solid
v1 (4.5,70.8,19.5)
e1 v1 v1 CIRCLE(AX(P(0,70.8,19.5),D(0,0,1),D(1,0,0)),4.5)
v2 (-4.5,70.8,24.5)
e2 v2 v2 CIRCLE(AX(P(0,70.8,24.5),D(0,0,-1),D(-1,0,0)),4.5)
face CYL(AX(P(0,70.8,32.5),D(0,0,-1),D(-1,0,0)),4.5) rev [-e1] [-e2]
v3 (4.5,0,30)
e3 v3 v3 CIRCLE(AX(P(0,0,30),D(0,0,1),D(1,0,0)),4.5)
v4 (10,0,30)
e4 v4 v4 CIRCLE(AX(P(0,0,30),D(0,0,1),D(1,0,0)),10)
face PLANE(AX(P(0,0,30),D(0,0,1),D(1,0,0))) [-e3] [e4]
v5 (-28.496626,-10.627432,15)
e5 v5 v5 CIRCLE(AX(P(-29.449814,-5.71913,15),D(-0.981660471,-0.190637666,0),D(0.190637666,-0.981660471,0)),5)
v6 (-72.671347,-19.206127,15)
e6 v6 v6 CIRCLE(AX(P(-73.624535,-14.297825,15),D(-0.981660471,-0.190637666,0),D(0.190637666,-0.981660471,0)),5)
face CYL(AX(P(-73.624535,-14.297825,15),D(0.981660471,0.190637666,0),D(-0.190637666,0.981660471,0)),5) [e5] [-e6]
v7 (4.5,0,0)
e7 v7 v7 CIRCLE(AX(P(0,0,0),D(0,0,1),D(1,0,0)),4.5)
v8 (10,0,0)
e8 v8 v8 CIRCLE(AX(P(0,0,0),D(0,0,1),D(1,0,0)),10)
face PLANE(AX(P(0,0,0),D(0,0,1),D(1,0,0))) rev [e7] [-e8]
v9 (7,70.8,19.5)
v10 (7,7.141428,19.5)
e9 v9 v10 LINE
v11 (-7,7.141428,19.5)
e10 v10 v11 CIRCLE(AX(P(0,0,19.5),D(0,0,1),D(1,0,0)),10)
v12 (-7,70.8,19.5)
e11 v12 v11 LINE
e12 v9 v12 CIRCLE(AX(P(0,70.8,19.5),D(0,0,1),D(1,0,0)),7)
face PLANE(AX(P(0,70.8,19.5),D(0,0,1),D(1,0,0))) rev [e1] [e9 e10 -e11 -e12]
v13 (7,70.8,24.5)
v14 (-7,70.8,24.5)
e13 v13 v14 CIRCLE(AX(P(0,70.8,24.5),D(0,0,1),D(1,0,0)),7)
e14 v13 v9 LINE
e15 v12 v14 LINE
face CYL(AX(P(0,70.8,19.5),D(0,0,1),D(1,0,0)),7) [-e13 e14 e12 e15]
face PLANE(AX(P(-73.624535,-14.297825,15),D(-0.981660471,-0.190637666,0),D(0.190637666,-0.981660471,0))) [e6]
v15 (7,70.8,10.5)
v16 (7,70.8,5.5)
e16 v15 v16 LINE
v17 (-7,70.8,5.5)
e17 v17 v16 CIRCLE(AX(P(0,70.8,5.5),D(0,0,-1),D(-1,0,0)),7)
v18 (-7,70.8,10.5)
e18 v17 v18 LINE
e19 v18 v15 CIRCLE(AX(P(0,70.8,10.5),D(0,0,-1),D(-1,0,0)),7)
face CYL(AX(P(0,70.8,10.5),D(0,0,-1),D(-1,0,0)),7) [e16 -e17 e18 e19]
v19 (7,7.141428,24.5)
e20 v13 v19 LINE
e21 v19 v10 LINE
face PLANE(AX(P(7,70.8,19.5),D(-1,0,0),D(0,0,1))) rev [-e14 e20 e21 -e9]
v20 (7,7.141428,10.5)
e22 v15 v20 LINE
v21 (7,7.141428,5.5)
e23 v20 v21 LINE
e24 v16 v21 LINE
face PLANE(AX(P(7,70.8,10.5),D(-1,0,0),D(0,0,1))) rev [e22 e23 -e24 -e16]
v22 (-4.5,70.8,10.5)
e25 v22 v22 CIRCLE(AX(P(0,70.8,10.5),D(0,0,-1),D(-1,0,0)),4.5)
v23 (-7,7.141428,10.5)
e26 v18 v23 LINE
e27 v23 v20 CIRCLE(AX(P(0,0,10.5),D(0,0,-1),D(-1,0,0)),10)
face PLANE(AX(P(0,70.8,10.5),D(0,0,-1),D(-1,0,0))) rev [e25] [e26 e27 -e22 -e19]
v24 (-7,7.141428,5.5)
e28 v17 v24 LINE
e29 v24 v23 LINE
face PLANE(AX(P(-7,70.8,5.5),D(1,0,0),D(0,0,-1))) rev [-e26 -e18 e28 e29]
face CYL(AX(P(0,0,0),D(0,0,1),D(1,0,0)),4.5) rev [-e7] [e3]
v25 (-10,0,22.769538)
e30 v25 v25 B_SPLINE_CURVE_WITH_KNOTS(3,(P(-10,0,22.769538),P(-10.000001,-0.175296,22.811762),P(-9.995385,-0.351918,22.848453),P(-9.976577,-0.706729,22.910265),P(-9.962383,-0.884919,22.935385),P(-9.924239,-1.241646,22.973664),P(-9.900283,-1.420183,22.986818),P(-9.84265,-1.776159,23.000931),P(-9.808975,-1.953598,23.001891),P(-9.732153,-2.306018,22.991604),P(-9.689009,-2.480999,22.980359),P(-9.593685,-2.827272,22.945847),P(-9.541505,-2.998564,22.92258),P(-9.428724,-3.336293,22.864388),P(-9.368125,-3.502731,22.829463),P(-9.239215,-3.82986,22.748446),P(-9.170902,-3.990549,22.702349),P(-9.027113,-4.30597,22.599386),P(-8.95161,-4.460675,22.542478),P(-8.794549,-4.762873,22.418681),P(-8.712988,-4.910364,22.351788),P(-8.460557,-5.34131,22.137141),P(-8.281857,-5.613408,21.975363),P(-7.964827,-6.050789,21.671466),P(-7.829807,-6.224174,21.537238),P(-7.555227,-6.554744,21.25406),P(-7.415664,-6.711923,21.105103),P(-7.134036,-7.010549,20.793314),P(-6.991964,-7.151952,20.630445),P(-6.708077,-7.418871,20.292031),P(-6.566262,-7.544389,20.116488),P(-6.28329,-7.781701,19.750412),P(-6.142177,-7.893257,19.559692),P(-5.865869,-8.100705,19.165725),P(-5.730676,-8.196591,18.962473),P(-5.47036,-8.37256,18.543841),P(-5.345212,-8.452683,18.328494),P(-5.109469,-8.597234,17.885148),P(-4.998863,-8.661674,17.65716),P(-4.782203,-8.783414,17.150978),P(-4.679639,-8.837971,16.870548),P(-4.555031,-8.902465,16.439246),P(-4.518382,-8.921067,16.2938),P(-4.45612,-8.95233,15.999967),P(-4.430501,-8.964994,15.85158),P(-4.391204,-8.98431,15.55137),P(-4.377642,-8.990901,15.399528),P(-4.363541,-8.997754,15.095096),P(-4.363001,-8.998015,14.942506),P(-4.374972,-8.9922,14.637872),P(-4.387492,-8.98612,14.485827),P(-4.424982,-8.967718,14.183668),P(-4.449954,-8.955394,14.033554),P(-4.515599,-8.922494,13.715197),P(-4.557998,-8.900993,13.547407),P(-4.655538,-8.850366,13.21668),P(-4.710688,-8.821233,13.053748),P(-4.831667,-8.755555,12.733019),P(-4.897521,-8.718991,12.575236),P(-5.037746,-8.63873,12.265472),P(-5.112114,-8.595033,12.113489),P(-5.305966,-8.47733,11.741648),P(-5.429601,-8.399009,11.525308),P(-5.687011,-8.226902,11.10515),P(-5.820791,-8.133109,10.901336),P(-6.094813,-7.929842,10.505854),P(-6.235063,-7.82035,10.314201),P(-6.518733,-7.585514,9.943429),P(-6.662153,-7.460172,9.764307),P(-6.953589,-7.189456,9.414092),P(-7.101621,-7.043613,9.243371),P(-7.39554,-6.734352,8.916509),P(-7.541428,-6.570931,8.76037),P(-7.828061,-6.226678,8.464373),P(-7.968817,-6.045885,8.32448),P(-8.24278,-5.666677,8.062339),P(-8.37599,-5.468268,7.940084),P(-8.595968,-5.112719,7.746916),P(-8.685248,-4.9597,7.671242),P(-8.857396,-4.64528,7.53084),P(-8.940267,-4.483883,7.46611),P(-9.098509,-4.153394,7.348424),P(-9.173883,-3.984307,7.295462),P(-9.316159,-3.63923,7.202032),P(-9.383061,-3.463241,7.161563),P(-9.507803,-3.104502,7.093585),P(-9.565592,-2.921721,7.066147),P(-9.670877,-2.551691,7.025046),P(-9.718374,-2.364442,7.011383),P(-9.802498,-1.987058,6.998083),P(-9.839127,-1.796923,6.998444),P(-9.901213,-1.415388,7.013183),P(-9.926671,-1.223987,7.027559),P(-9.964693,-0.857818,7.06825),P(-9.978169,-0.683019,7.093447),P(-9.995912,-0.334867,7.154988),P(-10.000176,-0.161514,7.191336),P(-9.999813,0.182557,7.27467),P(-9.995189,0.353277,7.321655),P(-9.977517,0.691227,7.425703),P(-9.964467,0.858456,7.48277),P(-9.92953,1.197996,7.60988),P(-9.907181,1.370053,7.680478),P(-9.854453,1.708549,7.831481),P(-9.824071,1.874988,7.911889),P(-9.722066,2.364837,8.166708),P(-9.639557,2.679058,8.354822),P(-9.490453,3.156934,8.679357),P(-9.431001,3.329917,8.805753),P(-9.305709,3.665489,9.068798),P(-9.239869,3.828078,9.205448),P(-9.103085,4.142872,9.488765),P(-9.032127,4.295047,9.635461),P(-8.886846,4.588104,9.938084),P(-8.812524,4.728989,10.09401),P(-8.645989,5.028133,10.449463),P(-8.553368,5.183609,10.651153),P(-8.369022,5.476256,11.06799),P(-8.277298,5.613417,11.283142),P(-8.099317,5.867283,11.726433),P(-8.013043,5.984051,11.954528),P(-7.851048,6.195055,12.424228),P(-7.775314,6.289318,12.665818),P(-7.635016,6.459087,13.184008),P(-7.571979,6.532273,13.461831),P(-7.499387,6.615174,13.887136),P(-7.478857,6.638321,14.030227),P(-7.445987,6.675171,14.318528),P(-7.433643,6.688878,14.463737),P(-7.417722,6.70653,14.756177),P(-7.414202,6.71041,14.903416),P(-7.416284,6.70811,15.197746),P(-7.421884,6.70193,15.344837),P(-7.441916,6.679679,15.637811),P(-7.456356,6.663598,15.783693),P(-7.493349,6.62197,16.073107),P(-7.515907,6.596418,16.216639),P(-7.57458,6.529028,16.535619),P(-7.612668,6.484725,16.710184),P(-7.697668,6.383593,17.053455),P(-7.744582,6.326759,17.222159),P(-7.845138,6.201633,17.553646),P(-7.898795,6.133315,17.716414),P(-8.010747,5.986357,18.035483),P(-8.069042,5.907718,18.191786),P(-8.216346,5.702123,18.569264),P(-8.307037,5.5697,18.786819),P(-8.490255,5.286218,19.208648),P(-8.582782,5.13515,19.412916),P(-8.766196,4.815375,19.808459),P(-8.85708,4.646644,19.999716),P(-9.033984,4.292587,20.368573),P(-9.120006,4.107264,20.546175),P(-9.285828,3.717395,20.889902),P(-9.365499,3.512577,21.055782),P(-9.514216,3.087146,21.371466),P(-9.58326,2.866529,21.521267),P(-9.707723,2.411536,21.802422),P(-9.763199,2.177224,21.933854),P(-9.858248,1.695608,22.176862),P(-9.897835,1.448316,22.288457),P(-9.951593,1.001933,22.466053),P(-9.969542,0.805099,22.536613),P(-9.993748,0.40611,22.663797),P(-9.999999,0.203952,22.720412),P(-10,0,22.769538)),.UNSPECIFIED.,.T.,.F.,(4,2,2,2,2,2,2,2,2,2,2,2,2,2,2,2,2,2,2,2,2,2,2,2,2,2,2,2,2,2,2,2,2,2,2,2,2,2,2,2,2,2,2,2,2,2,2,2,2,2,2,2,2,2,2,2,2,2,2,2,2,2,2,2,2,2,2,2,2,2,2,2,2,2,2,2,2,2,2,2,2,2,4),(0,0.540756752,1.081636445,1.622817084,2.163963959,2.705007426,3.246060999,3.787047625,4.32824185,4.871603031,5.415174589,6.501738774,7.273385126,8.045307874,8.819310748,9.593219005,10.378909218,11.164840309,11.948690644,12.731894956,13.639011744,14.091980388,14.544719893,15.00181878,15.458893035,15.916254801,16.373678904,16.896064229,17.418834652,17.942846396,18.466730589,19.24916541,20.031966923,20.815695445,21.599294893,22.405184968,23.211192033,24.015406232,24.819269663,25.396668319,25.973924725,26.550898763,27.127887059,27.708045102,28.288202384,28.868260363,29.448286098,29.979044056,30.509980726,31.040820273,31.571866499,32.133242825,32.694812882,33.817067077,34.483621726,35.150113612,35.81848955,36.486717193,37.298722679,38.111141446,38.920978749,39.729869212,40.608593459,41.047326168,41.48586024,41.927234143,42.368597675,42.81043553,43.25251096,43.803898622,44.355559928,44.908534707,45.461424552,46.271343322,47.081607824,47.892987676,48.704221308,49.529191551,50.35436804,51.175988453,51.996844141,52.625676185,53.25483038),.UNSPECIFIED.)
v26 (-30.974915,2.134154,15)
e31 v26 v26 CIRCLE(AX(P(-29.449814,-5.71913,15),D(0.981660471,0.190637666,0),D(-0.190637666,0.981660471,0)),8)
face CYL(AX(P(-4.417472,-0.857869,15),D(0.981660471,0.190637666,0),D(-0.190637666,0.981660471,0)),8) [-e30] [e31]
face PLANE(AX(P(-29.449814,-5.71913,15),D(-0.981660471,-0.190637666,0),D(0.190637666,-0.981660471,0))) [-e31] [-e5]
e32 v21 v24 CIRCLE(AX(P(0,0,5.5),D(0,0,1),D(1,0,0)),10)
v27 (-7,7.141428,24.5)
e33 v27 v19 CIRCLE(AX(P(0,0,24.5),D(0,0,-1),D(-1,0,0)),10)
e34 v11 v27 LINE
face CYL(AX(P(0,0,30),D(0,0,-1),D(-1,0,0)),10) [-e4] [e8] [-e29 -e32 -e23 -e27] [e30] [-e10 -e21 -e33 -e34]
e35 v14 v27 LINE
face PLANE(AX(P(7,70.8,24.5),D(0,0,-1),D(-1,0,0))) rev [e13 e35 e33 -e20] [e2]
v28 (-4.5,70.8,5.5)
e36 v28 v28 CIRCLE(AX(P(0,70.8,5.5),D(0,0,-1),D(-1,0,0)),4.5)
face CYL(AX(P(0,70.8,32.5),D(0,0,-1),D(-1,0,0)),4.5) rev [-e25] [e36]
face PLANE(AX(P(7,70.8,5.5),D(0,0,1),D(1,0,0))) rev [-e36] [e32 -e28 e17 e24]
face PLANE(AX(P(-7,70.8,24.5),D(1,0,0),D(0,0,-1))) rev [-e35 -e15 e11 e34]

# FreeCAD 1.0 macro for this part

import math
import FreeCAD as App
import Part
import Sketcher

V = App.Vector
Q = App.Units.Quantity


def add_polygon(sketch, points):
    """Adds a closed chain of lines whose ends are joined by coincident constraints."""
    first, n = sketch.GeometryCount, len(points)
    for a, b in zip(points, points[1:] + points[:1]):
        sketch.addGeometry(Part.LineSegment(App.Vector(*a, 0), App.Vector(*b, 0)), False)
    for i in range(n):
        sketch.addConstraint(Sketcher.Constraint("Coincident", first + i, 2, first + (i + 1) % n, 1))

doc = App.newDocument("Part")
params = doc.addObject("Spreadsheet::Sheet", "Params")
for row, (alias, value) in enumerate([
    ("sketch1_diameter", "20 mm"),
    ("pad1_length", "30 mm"),
    ("sketch2_diameter", "9 mm"),
    ("pocket1_length", "30 mm"),
    ("sketch3_width", "14 mm"),
    ("sketch3_height", "5 mm"),
    ("pad2_length", "66.3 mm"),
    ("sketch4_radius", "7 mm"),
    ("pad3_length", "5 mm"),
    ("sketch5_radius", "7 mm"),
    ("pad4_length", "5 mm"),
    ("sketch6_diameter", "9 mm"),
    ("pocket2_length", "27 mm"),
    ("sketch7_length", "8 mm"),
    ("sketch7_length2", "25.5 mm"),
    ("revolution_angle", "360 deg"),
    ("sketch8_diameter", "10 mm"),
    ("pad5_length", "45 mm"),
], start=1):
    params.set(f"A{row}", alias)
    params.set(f"B{row}", "=" + value)
    params.setAlias(f"B{row}", alias)

body = doc.addObject("PartDesign::Body", "Body")

sketch1 = body.newObject("Sketcher::SketchObject", "Sketch")
sketch1.AttachmentSupport = (doc.getObject("XY_Plane"), [""])
sketch1.MapMode = "FlatFace"
sketch1.addGeometry(Part.Circle(V(0, 0, 0), V(0, 0, 1), 10), False)
sketch1.addConstraint(Sketcher.Constraint("Coincident", 0, 3, -1, 1))
sketch1.addConstraint(Sketcher.Constraint("Diameter", 0, 20.0))
sketch1.setExpression("Constraints[1]", "Params.sketch1_diameter")
pad1 = body.newObject("PartDesign::Pad", "Pad")
pad1.Profile = sketch1
pad1.setExpression("Length", "Params.pad1_length")

sketch2 = body.newObject("Sketcher::SketchObject", "Sketch001")
sketch2.AttachmentSupport = (doc.getObject("XY_Plane"), [""])
sketch2.MapMode = "FlatFace"
sketch2.AttachmentOffset = App.Placement(V(0, 0, 30), App.Rotation())
sketch2.addGeometry(Part.Circle(V(0, 0, 0), V(0, 0, 1), 4.5), False)
sketch2.addConstraint(Sketcher.Constraint("Coincident", 0, 3, -1, 1))
sketch2.addConstraint(Sketcher.Constraint("Diameter", 0, 9.0))
sketch2.setExpression("Constraints[1]", "Params.sketch2_diameter")
pocket1 = body.newObject("PartDesign::Pocket", "Pocket")
pocket1.Profile = sketch2
pocket1.setExpression("Length", "Params.pocket1_length")

sketch3 = body.newObject("Sketcher::SketchObject", "Sketch002")
sketch3.AttachmentSupport = (doc.getObject("XZ_Plane"), [""])
sketch3.MapMode = "FlatFace"
sketch3.AttachmentOffset = App.Placement(V(0, 0, -4.5), App.Rotation())
add_polygon(sketch3, [(7, 20), (-7, 20), (-7, 24), (7, 24)])
add_polygon(sketch3, [(7, 10), (7, 6), (-7, 6), (-7, 10)])
sketch3.addConstraint(Sketcher.Constraint("Horizontal", 0))
sketch3.addConstraint(Sketcher.Constraint("Vertical", 1))
sketch3.addConstraint(Sketcher.Constraint("Horizontal", 2))
sketch3.addConstraint(Sketcher.Constraint("Vertical", 3))
sketch3.addConstraint(Sketcher.Constraint("Vertical", 4))
sketch3.addConstraint(Sketcher.Constraint("Horizontal", 5))
sketch3.addConstraint(Sketcher.Constraint("Vertical", 6))
sketch3.addConstraint(Sketcher.Constraint("Horizontal", 7))
sketch3.addConstraint(Sketcher.Constraint("Vertical", 3, 2, 4, 2))
sketch3.addConstraint(Sketcher.Constraint("Vertical", 1, 2, 5, 2))
sketch3.addConstraint(Sketcher.Constraint("Equal", 3, 4))
sketch3.addConstraint(Sketcher.Constraint("DistanceX", 0, 2, 0, 1, 14.0))
sketch3.addConstraint(Sketcher.Constraint("DistanceY", 1, 1, 1, 2, 5.0))
sketch3.addConstraint(Sketcher.Constraint("DistanceX", 0, 2, -1, 1, 7.0))
sketch3.addConstraint(Sketcher.Constraint("DistanceY", 4, 2, 3, 2, 14.0))
sketch3.addConstraint(Sketcher.Constraint("DistanceY", -1, 1, 0, 2, 19.5))
sketch3.setExpression("Constraints[19]", "Params.sketch3_width")
sketch3.setExpression("Constraints[20]", "Params.sketch3_height")
pad2 = body.newObject("PartDesign::Pad", "Pad001")
pad2.Profile = sketch3
pad2.setExpression("Length", "Params.pad2_length")
pad2.Reversed = True

sketch4 = body.newObject("Sketcher::SketchObject", "Sketch003")
sketch4.AttachmentSupport = (doc.getObject("XY_Plane"), [""])
sketch4.MapMode = "FlatFace"
sketch4.AttachmentOffset = App.Placement(V(0, 0, 5.5), App.Rotation())
sketch4.addGeometry(Part.LineSegment(V(7, 71, 0), V(-7, 71, 0)), False)
sketch4.addGeometry(Part.ArcOfCircle(Part.Circle(V(0, 71, 0), V(0, 0, 1), 7), math.radians(0), math.radians(180)), False)
sketch4.addConstraint(Sketcher.Constraint("Coincident", 0, 1, 1, 1))
sketch4.addConstraint(Sketcher.Constraint("Coincident", 1, 2, 0, 2))
sketch4.addConstraint(Sketcher.Constraint("Horizontal", 0))
sketch4.addConstraint(Sketcher.Constraint("PointOnObject", 1, 3, -2))
sketch4.addConstraint(Sketcher.Constraint("Horizontal", 1, 3, 0, 1))
sketch4.addConstraint(Sketcher.Constraint("Radius", 1, 7.0))
sketch4.addConstraint(Sketcher.Constraint("DistanceY", -1, 1, 1, 3, 70.8))
sketch4.setExpression("Constraints[5]", "Params.sketch4_radius")
pad3 = body.newObject("PartDesign::Pad", "Pad002")
pad3.Profile = sketch4
pad3.setExpression("Length", "Params.pad3_length")

sketch5 = body.newObject("Sketcher::SketchObject", "Sketch004")
sketch5.AttachmentSupport = (doc.getObject("XY_Plane"), [""])
sketch5.MapMode = "FlatFace"
sketch5.AttachmentOffset = App.Placement(V(0, 0, 19.5), App.Rotation())
sketch5.addGeometry(Part.LineSegment(V(-7, 71, 0), V(7, 71, 0)), False)
sketch5.addGeometry(Part.ArcOfCircle(Part.Circle(V(0, 71, 0), V(0, 0, 1), 7), math.radians(0), math.radians(180)), False)
sketch5.addConstraint(Sketcher.Constraint("Coincident", 0, 1, 1, 2))
sketch5.addConstraint(Sketcher.Constraint("Coincident", 1, 1, 0, 2))
sketch5.addConstraint(Sketcher.Constraint("Horizontal", 0))
sketch5.addConstraint(Sketcher.Constraint("PointOnObject", 1, 3, -2))
sketch5.addConstraint(Sketcher.Constraint("Horizontal", 1, 3, 0, 1))
sketch5.addConstraint(Sketcher.Constraint("Radius", 1, 7.0))
sketch5.addConstraint(Sketcher.Constraint("DistanceY", -1, 1, 1, 3, 70.8))
sketch5.setExpression("Constraints[5]", "Params.sketch5_radius")
pad4 = body.newObject("PartDesign::Pad", "Pad003")
pad4.Profile = sketch5
pad4.setExpression("Length", "Params.pad4_length")

sketch6 = body.newObject("Sketcher::SketchObject", "Sketch005")
sketch6.AttachmentSupport = (doc.getObject("XY_Plane"), [""])
sketch6.MapMode = "FlatFace"
sketch6.AttachmentOffset = App.Placement(V(0, 0, 5.5), App.Rotation())
sketch6.addGeometry(Part.Circle(V(0, 70.8, 0), V(0, 0, 1), 4.5), False)
sketch6.addConstraint(Sketcher.Constraint("PointOnObject", 0, 3, -2))
sketch6.addConstraint(Sketcher.Constraint("Diameter", 0, 9.0))
sketch6.addConstraint(Sketcher.Constraint("DistanceY", -1, 1, 0, 3, 70.8))
sketch6.setExpression("Constraints[1]", "Params.sketch6_diameter")
pocket2 = body.newObject("PartDesign::Pocket", "Pocket001")
pocket2.Profile = sketch6
pocket2.setExpression("Length", "Params.pocket2_length")
pocket2.Reversed = True

sketch7 = body.newObject("Sketcher::SketchObject", "Sketch006")
sketch7.AttachmentSupport = (doc.getObject("XY_Plane"), [""])
sketch7.MapMode = "FlatFace"
sketch7.AttachmentOffset = App.Placement(V(0, 0, 15), App.Rotation())
add_polygon(sketch7, [(-4, -1), (-6, 7), (-31, 2), (-29, -6)])
sketch7.addGeometry(Part.LineSegment(V(-4, -1, 0), V(-29, -6, 0)), True)
sketch7.addConstraint(Sketcher.Constraint("Coincident", 4, 1, 3, 2))
sketch7.addConstraint(Sketcher.Constraint("Coincident", 4, 2, 2, 2))
sketch7.addConstraint(Sketcher.Constraint("Perpendicular", 0, 1))
sketch7.addConstraint(Sketcher.Constraint("Perpendicular", 1, 2))
sketch7.addConstraint(Sketcher.Constraint("Perpendicular", 2, 3))
sketch7.addConstraint(Sketcher.Constraint("Distance", 0, 8.0))
sketch7.addConstraint(Sketcher.Constraint("Distance", 1, 25.5))
sketch7.addConstraint(Sketcher.Constraint("Angle", 0, Q("100.99 deg")))
sketch7.addConstraint(Sketcher.Constraint("DistanceY", 2, 2, -1, 1, 5.71913))
sketch7.addConstraint(Sketcher.Constraint("DistanceX", 0, 2, -1, 1, 5.942573))
sketch7.setExpression("Constraints[9]", "Params.sketch7_length")
sketch7.setExpression("Constraints[10]", "Params.sketch7_length2")
revolution = body.newObject("PartDesign::Revolution", "Revolution")
revolution.Profile = sketch7
revolution.ReferenceAxis = (sketch7, ["Axis0"])
revolution.setExpression("Angle", "Params.revolution_angle")

sketch8 = body.newObject("Sketcher::SketchObject", "Sketch007")
sketch8.Placement = App.Placement(V(-29.449814, -5.71913, 0), App.Rotation(V(0, 0, 1), V(-0.190637666, 0.981660471, 0), V(-0.981660471, -0.190637666, 0), "ZXY"))
sketch8.addGeometry(Part.Circle(V(15, 0, 0), V(0, 0, 1), 5), False)
sketch8.addConstraint(Sketcher.Constraint("PointOnObject", 0, 3, -1))
sketch8.addConstraint(Sketcher.Constraint("Diameter", 0, 10.0))
sketch8.addConstraint(Sketcher.Constraint("DistanceX", -1, 1, 0, 3, 15.0))
sketch8.setExpression("Constraints[1]", "Params.sketch8_diameter")
pad5 = body.newObject("PartDesign::Pad", "Pad004")
pad5.Profile = sketch8
pad5.setExpression("Length", "Params.pad5_length")

doc.recompute()
